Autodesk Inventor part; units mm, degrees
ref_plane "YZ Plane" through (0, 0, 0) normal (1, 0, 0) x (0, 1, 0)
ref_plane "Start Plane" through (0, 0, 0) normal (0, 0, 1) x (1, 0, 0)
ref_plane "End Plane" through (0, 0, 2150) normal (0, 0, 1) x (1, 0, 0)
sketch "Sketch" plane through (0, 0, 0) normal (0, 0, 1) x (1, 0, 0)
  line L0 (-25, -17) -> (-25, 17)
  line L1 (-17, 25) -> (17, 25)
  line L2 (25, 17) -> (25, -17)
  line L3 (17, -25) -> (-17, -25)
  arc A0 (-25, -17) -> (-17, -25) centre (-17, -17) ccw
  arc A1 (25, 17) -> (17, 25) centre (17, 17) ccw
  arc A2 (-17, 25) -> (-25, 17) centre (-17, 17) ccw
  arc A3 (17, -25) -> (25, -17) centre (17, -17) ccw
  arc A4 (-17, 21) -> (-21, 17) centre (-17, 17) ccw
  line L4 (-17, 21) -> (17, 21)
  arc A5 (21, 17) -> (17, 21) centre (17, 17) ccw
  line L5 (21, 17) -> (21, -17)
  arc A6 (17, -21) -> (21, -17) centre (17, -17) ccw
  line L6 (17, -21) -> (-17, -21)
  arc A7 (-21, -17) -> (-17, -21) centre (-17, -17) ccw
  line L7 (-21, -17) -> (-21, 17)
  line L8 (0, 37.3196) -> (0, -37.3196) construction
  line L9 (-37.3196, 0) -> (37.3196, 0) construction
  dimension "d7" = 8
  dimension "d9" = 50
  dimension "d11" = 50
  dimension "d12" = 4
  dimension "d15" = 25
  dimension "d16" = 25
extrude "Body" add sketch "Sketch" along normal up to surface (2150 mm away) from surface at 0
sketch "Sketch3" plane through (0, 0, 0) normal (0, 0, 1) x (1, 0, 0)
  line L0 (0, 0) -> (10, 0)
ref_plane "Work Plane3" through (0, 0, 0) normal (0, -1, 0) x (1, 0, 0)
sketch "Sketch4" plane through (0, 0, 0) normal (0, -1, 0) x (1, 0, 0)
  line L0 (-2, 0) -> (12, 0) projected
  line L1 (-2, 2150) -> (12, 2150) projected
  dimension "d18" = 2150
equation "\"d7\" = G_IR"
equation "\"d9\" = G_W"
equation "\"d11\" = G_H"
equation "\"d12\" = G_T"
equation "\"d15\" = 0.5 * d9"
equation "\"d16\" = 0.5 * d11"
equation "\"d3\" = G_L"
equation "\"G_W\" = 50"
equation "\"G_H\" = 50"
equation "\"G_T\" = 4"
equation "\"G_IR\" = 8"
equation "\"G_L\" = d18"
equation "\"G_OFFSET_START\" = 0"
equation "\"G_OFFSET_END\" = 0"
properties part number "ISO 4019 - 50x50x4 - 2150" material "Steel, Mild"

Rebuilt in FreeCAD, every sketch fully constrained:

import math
import FreeCAD as App
import Part
import Sketcher

V = App.Vector
Q = App.Units.Quantity

doc = App.newDocument("Part")
params = doc.addObject("Spreadsheet::Sheet", "Params")
for row, (alias, value) in enumerate([
    ("sketch1_radius", "8 mm"),
    ("sketch1_radius2", "4 mm"),
    ("pad1_length", "2150 mm"),
], start=1):
    params.set(f"A{row}", alias)
    params.set(f"B{row}", "=" + value)
    params.setAlias(f"B{row}", alias)

body = doc.addObject("PartDesign::Body", "Body")

sketch1 = body.newObject("Sketcher::SketchObject", "Sketch")
sketch1.AttachmentSupport = (doc.getObject("XY_Plane"), [""])
sketch1.MapMode = "FlatFace"
sketch1.addGeometry([
    Part.LineSegment(V(-25, 17, 0), V(-25, -17, 0)),
    Part.ArcOfCircle(Part.Circle(V(-17, -17, 0), V(0, 0, 1), 8), math.radians(180), math.radians(270)),
    Part.LineSegment(V(-17, -25, 0), V(17, -25, 0)),
    Part.ArcOfCircle(Part.Circle(V(17, -17, 0), V(0, 0, 1), 8), math.radians(-90), math.radians(0)),
    Part.LineSegment(V(25, -17, 0), V(25, 17, 0)),
    Part.ArcOfCircle(Part.Circle(V(17, 17, 0), V(0, 0, 1), 8), math.radians(0), math.radians(90)),
    Part.LineSegment(V(17, 25, 0), V(-17, 25, 0)),
    Part.ArcOfCircle(Part.Circle(V(-17, 17, 0), V(0, 0, 1), 8), math.radians(90), math.radians(180)),
    Part.ArcOfCircle(Part.Circle(V(-17, 17, 0), V(0, 0, 1), 4), math.radians(90), math.radians(180)),
    Part.LineSegment(V(-17, 21, 0), V(17, 21, 0)),
    Part.ArcOfCircle(Part.Circle(V(17, 17, 0), V(0, 0, 1), 4), math.radians(0), math.radians(90)),
    Part.LineSegment(V(21, 17, 0), V(21, -17, 0)),
    Part.ArcOfCircle(Part.Circle(V(17, -17, 0), V(0, 0, 1), 4), math.radians(-90), math.radians(0)),
    Part.LineSegment(V(17, -21, 0), V(-17, -21, 0)),
    Part.ArcOfCircle(Part.Circle(V(-17, -17, 0), V(0, 0, 1), 4), math.radians(180), math.radians(270)),
    Part.LineSegment(V(-21, -17, 0), V(-21, 17, 0)),
], False)
sketch1.addConstraint([
    Sketcher.Constraint("Tangent", 0, 2, 1, 1),
    Sketcher.Constraint("Tangent", 1, 2, 2, 1),
    Sketcher.Constraint("Tangent", 2, 2, 3, 1),
    Sketcher.Constraint("Tangent", 3, 2, 4, 1),
    Sketcher.Constraint("Tangent", 4, 2, 5, 1),
    Sketcher.Constraint("Tangent", 5, 2, 6, 1),
    Sketcher.Constraint("Tangent", 6, 2, 7, 1),
    Sketcher.Constraint("Tangent", 7, 2, 0, 1),
    Sketcher.Constraint("Tangent", 8, 1, 9, 1),
    Sketcher.Constraint("Tangent", 9, 2, 10, 2),
    Sketcher.Constraint("Tangent", 10, 1, 11, 1),
    Sketcher.Constraint("Tangent", 11, 2, 12, 2),
    Sketcher.Constraint("Tangent", 12, 1, 13, 1),
    Sketcher.Constraint("Tangent", 13, 2, 14, 2),
    Sketcher.Constraint("Tangent", 14, 1, 15, 1),
    Sketcher.Constraint("Tangent", 15, 2, 8, 2),
    Sketcher.Constraint("Vertical", 0),
    Sketcher.Constraint("Horizontal", 2),
    Sketcher.Constraint("Vertical", 4),
    Sketcher.Constraint("Horizontal", 6),
    Sketcher.Constraint("Horizontal", 9),
    Sketcher.Constraint("Vertical", 11),
    Sketcher.Constraint("Horizontal", 13),
    Sketcher.Constraint("Vertical", 15),
    Sketcher.Constraint("Coincident", 8, 3, 7, 3),
    Sketcher.Constraint("Coincident", 10, 3, 5, 3),
    Sketcher.Constraint("Coincident", 12, 3, 3, 3),
    Sketcher.Constraint("Equal", 1, 3),
    Sketcher.Constraint("Equal", 3, 5),
    Sketcher.Constraint("Equal", 5, 7),
    Sketcher.Constraint("Equal", 12, 14),
    Sketcher.Constraint("Symmetric", 1, 3, 5, 3, -1, 1),
    Sketcher.Constraint("Equal", 13, 0),
    Sketcher.Constraint("Radius", 1, Q("8 mm")),
    Sketcher.Constraint("Radius", 8, Q("4 mm")),
    Sketcher.Constraint("DistanceX", 0, 2, -1, 1, Q("25 mm")),
])
sketch1.setExpression("Constraints[33]", "Params.sketch1_radius")
sketch1.setExpression("Constraints[34]", "Params.sketch1_radius2")
pad1 = body.newObject("PartDesign::Pad", "Pad")
pad1.Profile = sketch1
pad1.setExpression("Length", "Params.pad1_length")

doc.recompute()
